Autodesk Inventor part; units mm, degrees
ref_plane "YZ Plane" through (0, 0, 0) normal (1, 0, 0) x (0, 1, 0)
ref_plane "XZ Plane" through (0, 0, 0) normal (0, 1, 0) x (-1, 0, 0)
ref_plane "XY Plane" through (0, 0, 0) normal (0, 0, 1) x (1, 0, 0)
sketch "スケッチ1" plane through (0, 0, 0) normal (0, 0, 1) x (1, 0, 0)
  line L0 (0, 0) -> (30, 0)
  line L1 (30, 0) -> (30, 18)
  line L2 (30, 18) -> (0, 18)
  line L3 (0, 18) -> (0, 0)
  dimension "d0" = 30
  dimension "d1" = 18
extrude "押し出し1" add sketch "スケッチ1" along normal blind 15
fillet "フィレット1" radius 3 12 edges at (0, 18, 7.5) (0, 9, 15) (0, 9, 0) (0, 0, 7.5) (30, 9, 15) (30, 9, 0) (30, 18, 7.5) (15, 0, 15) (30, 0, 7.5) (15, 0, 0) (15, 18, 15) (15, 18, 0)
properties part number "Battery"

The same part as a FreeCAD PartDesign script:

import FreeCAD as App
import Part
import Sketcher
Q = App.Units.Quantity

doc = App.newDocument("Part")
body = doc.addObject("PartDesign::Body", "Body")

sketch1 = doc.addObject("Sketcher::SketchObject", "Sketch")
body.addObject(sketch1)
sketch1.AttachmentSupport = (doc.XY_Plane, [""])
sketch1.MapMode = "FlatFace"
sketch1.addGeometry(Part.LineSegment(App.Vector(0, 18, 0), App.Vector(0, 0, 0)), False)
sketch1.addGeometry(Part.LineSegment(App.Vector(0, 0, 0), App.Vector(30, 0, 0)), False)
sketch1.addGeometry(Part.LineSegment(App.Vector(30, 0, 0), App.Vector(30, 18, 0)), False)
sketch1.addGeometry(Part.LineSegment(App.Vector(30, 18, 0), App.Vector(0, 18, 0)), False)
sketch1.addConstraint(Sketcher.Constraint("Coincident", 0, 2, 1, 1))
sketch1.addConstraint(Sketcher.Constraint("Coincident", 1, 2, 2, 1))
sketch1.addConstraint(Sketcher.Constraint("Coincident", 2, 2, 3, 1))
sketch1.addConstraint(Sketcher.Constraint("Coincident", 3, 2, 0, 1))
sketch1.addConstraint(Sketcher.Constraint("Vertical", 0))
sketch1.addConstraint(Sketcher.Constraint("Horizontal", 1))
sketch1.addConstraint(Sketcher.Constraint("Vertical", 2))
sketch1.addConstraint(Sketcher.Constraint("Horizontal", 3))
sketch1.addConstraint(Sketcher.Constraint("Coincident", 0, 2, -1, 1))
sketch1.addConstraint(Sketcher.Constraint("DistanceX", 1, 1, 1, 2, Q("30 mm")))
sketch1.addConstraint(Sketcher.Constraint("DistanceY", 0, 2, 0, 1, Q("18 mm")))
pad1 = doc.addObject("PartDesign::Pad", "Pad")
body.addObject(pad1)
pad1.Profile = sketch1
pad1.Length = 15
doc.recompute()

fillet = doc.addObject("PartDesign::Fillet", "Fillet")
body.addObject(fillet)
fillet.Base = (pad1, ["Edge1"])
fillet.UseAllEdges = True
fillet.Radius = 3

doc.recompute()
